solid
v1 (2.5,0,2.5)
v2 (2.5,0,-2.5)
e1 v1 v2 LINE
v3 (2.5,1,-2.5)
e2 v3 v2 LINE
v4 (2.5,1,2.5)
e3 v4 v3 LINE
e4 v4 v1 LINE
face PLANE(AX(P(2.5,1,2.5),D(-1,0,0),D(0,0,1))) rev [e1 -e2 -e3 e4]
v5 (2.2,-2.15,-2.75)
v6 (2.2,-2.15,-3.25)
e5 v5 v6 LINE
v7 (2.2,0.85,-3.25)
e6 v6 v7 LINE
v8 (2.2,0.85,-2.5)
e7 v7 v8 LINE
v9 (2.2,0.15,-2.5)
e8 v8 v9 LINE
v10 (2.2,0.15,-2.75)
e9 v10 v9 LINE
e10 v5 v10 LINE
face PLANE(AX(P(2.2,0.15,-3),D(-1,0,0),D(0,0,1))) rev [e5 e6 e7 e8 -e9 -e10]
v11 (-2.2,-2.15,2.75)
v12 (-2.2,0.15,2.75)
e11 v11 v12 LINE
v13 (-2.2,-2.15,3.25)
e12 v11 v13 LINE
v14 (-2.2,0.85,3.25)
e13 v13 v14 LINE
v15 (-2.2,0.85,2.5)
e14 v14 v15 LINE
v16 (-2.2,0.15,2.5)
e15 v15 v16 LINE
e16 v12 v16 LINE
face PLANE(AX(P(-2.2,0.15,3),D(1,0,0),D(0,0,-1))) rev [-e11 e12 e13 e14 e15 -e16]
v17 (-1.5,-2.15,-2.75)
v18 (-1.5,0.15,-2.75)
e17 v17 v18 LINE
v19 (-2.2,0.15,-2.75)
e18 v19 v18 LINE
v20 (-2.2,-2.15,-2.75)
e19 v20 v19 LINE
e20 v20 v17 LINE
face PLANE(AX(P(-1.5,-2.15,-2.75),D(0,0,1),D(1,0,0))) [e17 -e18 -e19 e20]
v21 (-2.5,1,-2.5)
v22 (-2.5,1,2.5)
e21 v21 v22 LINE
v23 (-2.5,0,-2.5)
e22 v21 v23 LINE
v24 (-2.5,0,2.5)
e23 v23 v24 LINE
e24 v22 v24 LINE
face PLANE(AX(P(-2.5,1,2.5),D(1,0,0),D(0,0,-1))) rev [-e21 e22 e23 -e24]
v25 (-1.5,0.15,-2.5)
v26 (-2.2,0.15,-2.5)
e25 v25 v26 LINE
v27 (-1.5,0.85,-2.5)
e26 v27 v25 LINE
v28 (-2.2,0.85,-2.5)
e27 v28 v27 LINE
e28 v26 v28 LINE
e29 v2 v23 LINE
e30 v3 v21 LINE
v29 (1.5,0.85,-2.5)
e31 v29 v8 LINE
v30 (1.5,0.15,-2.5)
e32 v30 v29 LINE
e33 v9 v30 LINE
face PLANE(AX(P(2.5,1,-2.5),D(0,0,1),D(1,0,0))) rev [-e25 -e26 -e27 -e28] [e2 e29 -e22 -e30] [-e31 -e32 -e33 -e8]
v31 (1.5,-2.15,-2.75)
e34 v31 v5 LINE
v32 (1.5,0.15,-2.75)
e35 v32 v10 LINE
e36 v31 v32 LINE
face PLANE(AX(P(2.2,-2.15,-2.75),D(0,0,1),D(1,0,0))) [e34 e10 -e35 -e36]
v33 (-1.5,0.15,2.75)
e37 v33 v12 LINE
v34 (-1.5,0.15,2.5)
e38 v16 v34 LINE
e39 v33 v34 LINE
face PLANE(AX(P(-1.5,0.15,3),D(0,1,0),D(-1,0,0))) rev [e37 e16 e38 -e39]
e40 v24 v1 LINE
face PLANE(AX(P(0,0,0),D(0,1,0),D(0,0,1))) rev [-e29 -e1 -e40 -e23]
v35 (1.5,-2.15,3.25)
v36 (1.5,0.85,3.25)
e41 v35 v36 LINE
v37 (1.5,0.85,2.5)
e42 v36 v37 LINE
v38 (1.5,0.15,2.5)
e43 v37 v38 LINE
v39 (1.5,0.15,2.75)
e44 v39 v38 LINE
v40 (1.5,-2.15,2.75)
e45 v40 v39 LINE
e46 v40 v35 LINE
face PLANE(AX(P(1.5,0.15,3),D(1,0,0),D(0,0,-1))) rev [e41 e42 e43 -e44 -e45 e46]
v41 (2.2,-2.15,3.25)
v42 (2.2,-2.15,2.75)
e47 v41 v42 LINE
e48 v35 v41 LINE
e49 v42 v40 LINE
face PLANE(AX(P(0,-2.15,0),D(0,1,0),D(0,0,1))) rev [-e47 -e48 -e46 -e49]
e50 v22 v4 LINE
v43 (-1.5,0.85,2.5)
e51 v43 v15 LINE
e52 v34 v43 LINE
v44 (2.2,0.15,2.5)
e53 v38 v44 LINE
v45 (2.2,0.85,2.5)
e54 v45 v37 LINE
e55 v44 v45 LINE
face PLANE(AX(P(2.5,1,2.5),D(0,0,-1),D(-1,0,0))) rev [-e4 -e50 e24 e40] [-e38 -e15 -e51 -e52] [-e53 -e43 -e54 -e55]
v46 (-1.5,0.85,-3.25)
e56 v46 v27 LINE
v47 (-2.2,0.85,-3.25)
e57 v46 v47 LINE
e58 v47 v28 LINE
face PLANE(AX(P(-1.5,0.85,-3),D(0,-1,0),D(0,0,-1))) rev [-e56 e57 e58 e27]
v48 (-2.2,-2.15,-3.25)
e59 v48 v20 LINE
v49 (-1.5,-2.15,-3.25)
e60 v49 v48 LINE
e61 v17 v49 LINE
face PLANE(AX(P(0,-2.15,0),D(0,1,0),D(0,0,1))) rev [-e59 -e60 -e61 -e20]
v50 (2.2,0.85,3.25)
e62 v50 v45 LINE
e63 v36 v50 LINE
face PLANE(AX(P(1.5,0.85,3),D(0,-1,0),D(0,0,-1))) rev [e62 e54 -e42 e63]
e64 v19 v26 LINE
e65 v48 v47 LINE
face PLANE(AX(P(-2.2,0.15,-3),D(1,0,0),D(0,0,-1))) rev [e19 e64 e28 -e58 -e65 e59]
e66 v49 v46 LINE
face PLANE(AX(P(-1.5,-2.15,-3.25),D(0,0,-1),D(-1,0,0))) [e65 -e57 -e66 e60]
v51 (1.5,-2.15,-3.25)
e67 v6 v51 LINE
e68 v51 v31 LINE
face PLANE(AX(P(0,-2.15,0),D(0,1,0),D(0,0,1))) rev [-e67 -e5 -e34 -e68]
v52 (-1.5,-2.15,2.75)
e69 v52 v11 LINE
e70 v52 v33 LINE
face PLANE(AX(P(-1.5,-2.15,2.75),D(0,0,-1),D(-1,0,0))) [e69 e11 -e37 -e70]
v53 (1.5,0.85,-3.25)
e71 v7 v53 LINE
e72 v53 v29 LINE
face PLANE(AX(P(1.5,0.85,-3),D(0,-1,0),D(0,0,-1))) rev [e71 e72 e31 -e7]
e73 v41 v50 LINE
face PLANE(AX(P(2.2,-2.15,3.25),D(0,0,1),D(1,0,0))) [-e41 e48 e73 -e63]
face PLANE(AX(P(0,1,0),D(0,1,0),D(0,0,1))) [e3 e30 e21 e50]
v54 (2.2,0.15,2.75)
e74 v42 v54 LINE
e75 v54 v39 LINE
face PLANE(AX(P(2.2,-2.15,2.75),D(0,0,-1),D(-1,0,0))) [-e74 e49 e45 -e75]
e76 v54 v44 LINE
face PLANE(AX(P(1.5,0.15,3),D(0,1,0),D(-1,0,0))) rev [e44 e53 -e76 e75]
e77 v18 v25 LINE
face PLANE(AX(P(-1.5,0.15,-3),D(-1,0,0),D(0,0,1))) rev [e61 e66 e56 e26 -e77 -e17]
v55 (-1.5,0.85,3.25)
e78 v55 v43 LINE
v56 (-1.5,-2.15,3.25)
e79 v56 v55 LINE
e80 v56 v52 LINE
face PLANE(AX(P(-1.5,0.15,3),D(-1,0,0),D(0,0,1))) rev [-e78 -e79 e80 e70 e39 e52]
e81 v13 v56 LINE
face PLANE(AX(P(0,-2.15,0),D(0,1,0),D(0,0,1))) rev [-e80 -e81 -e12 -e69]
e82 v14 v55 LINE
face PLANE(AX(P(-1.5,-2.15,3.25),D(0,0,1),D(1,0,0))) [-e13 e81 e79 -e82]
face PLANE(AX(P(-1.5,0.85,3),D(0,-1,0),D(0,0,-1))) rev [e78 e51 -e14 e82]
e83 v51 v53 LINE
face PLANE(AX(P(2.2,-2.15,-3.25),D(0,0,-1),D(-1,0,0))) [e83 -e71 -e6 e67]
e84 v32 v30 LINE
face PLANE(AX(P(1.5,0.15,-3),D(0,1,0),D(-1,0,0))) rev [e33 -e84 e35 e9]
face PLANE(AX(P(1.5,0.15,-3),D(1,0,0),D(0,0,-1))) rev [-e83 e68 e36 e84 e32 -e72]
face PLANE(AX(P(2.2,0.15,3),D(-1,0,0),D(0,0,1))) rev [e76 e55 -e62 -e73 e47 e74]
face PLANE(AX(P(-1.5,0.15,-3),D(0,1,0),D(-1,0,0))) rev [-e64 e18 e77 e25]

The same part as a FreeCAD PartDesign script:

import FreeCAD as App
import Part
import Sketcher
from FreeCAD import Vector

doc = App.newDocument("Part")
body = doc.addObject("PartDesign::Body", "Body")

# Sketch on XZ plane
sketch1 = body.newObject("Sketcher::SketchObject", "Sketch")
sketch1.AttachmentSupport = (doc.getObject("XZ_Plane"), [""])
sketch1.MapMode = "FlatFace"
sketch1.addGeometry([
    Part.LineSegment(Vector(-2.5, -2.5, 0), Vector(-2.5, 2.5, 0)),
    Part.LineSegment(Vector(-2.5, 2.5, 0), Vector(2.5, 2.5, 0)),
    Part.LineSegment(Vector(2.5, 2.5, 0), Vector(2.5, -2.5, 0)),
    Part.LineSegment(Vector(2.5, -2.5, 0), Vector(-2.5, -2.5, 0)),
], False)
sketch1.addConstraint([
    Sketcher.Constraint("Coincident", 0, 2, 1, 1),
    Sketcher.Constraint("Coincident", 1, 2, 2, 1),
    Sketcher.Constraint("Coincident", 2, 2, 3, 1),
    Sketcher.Constraint("Coincident", 3, 2, 0, 1),
    Sketcher.Constraint("Vertical", 0),
    Sketcher.Constraint("Horizontal", 1),
    Sketcher.Constraint("Vertical", 2),
    Sketcher.Constraint("Horizontal", 3),
    Sketcher.Constraint("Symmetric", 0, 2, 2, 2, -1, 1),
    Sketcher.Constraint("Equal", 3, 0),
    Sketcher.Constraint("DistanceX", 1, 1, 1, 2, 5.0),
])
pad1 = body.newObject("PartDesign::Pad", "Pad")
pad1.Profile = sketch1
pad1.Length = 1
pad1.Reversed = True

# Sketch on XY plane
sketch2 = body.newObject("Sketcher::SketchObject", "Sketch001")
sketch2.AttachmentSupport = (doc.getObject("XY_Plane"), [""])
sketch2.MapMode = "FlatFace"
sketch2.AttachmentOffset = App.Placement(Vector(0, 0, 2.5), App.Rotation())
sketch2.addGeometry([
    Part.LineSegment(Vector(-2.2, 0.85, 0), Vector(-2.2, 0.15, 0)),  # 0
    Part.LineSegment(Vector(-2.2, 0.15, 0), Vector(-1.5, 0.15, 0)),  # 1
    Part.LineSegment(Vector(-1.5, 0.15, 0), Vector(-1.5, 0.85, 0)),  # 2
    Part.LineSegment(Vector(-1.5, 0.85, 0), Vector(-2.2, 0.85, 0)),  # 3
    Part.LineSegment(Vector(1.5, 0.85, 0), Vector(1.5, 0.15, 0)),  # 4
    Part.LineSegment(Vector(1.5, 0.15, 0), Vector(2.2, 0.15, 0)),  # 5
    Part.LineSegment(Vector(2.2, 0.15, 0), Vector(2.2, 0.85, 0)),  # 6
    Part.LineSegment(Vector(2.2, 0.85, 0), Vector(1.5, 0.85, 0)),  # 7
], False)
sketch2.addConstraint([
    Sketcher.Constraint("Coincident", 0, 2, 1, 1),
    Sketcher.Constraint("Coincident", 1, 2, 2, 1),
    Sketcher.Constraint("Coincident", 2, 2, 3, 1),
    Sketcher.Constraint("Coincident", 3, 2, 0, 1),
    Sketcher.Constraint("Coincident", 4, 2, 5, 1),
    Sketcher.Constraint("Coincident", 5, 2, 6, 1),
    Sketcher.Constraint("Coincident", 6, 2, 7, 1),
    Sketcher.Constraint("Coincident", 7, 2, 4, 1),
    Sketcher.Constraint("Vertical", 0),
    Sketcher.Constraint("Horizontal", 1),
    Sketcher.Constraint("Vertical", 2),
    Sketcher.Constraint("Horizontal", 3),
    Sketcher.Constraint("Vertical", 4),
    Sketcher.Constraint("Horizontal", 5),
    Sketcher.Constraint("Vertical", 6),
    Sketcher.Constraint("Horizontal", 7),
    Sketcher.Constraint("Symmetric", 1, 2, 4, 2, -2),
    Sketcher.Constraint("Symmetric", 3, 2, 6, 2, -2),
    Sketcher.Constraint("Equal", 7, 0),
    Sketcher.Constraint("DistanceX", 1, 1, 1, 2, 0.7),
    Sketcher.Constraint("DistanceX", 1, 2, 4, 2, 3.0),
    Sketcher.Constraint("DistanceY", -1, 1, 0, 2, 0.15),
])
pad2 = body.newObject("PartDesign::Pad", "Pad001")
pad2.Profile = sketch2
pad2.Length = 0.5

# Sketch on XZ plane
sketch3 = body.newObject("Sketcher::SketchObject", "Sketch002")
sketch3.AttachmentSupport = (doc.getObject("XZ_Plane"), [""])
sketch3.MapMode = "FlatFace"
sketch3.AttachmentOffset = App.Placement(Vector(0, 0, -0.85), App.Rotation())
sketch3.addGeometry([
    Part.LineSegment(Vector(-2.2, 2.75, 0), Vector(-2.2, 3.25, 0)),  # 0
    Part.LineSegment(Vector(-2.2, 3.25, 0), Vector(-1.5, 3.25, 0)),  # 1
    Part.LineSegment(Vector(-1.5, 3.25, 0), Vector(-1.5, 2.75, 0)),  # 2
    Part.LineSegment(Vector(-1.5, 2.75, 0), Vector(-2.2, 2.75, 0)),  # 3
    Part.LineSegment(Vector(1.5, 2.75, 0), Vector(1.5, 3.25, 0)),  # 4
    Part.LineSegment(Vector(1.5, 3.25, 0), Vector(2.2, 3.25, 0)),  # 5
    Part.LineSegment(Vector(2.2, 3.25, 0), Vector(2.2, 2.75, 0)),  # 6
    Part.LineSegment(Vector(2.2, 2.75, 0), Vector(1.5, 2.75, 0)),  # 7
], False)
sketch3.addConstraint([
    Sketcher.Constraint("Coincident", 0, 2, 1, 1),
    Sketcher.Constraint("Coincident", 1, 2, 2, 1),
    Sketcher.Constraint("Coincident", 2, 2, 3, 1),
    Sketcher.Constraint("Coincident", 3, 2, 0, 1),
    Sketcher.Constraint("Coincident", 4, 2, 5, 1),
    Sketcher.Constraint("Coincident", 5, 2, 6, 1),
    Sketcher.Constraint("Coincident", 6, 2, 7, 1),
    Sketcher.Constraint("Coincident", 7, 2, 4, 1),
    Sketcher.Constraint("Vertical", 0),
    Sketcher.Constraint("Horizontal", 1),
    Sketcher.Constraint("Vertical", 2),
    Sketcher.Constraint("Horizontal", 3),
    Sketcher.Constraint("Vertical", 4),
    Sketcher.Constraint("Horizontal", 5),
    Sketcher.Constraint("Vertical", 6),
    Sketcher.Constraint("Horizontal", 7),
    Sketcher.Constraint("Symmetric", 1, 2, 4, 2, -2),
    Sketcher.Constraint("Symmetric", 3, 2, 6, 2, -2),
    Sketcher.Constraint("DistanceX", 1, 1, 1, 2, 0.7),
    Sketcher.Constraint("DistanceY", 0, 1, 0, 2, 0.5),
    Sketcher.Constraint("DistanceX", 1, 2, 4, 2, 3.0),
    Sketcher.Constraint("DistanceY", -1, 1, 0, 2, 3.25),
])
pad3 = body.newObject("PartDesign::Pad", "Pad002")
pad3.Profile = sketch3
pad3.Length = 3

# Sketch on XY plane
sketch4 = body.newObject("Sketcher::SketchObject", "Sketch003")
sketch4.AttachmentSupport = (doc.getObject("XY_Plane"), [""])
sketch4.MapMode = "FlatFace"
sketch4.AttachmentOffset = App.Placement(Vector(0, 0, -2.5), App.Rotation())
sketch4.addGeometry([
    Part.LineSegment(Vector(2.2, 0.85, 0), Vector(2.2, 0.15, 0)),  # 0
    Part.LineSegment(Vector(2.2, 0.15, 0), Vector(1.5, 0.15, 0)),  # 1
    Part.LineSegment(Vector(1.5, 0.15, 0), Vector(1.5, 0.85, 0)),  # 2
    Part.LineSegment(Vector(1.5, 0.85, 0), Vector(2.2, 0.85, 0)),  # 3
    Part.LineSegment(Vector(-1.5, 0.85, 0), Vector(-1.5, 0.15, 0)),  # 4
    Part.LineSegment(Vector(-1.5, 0.15, 0), Vector(-2.2, 0.15, 0)),  # 5
    Part.LineSegment(Vector(-2.2, 0.15, 0), Vector(-2.2, 0.85, 0)),  # 6
    Part.LineSegment(Vector(-2.2, 0.85, 0), Vector(-1.5, 0.85, 0)),  # 7
], False)
sketch4.addConstraint([
    Sketcher.Constraint("Coincident", 0, 2, 1, 1),
    Sketcher.Constraint("Coincident", 1, 2, 2, 1),
    Sketcher.Constraint("Coincident", 2, 2, 3, 1),
    Sketcher.Constraint("Coincident", 3, 2, 0, 1),
    Sketcher.Constraint("Coincident", 4, 2, 5, 1),
    Sketcher.Constraint("Coincident", 5, 2, 6, 1),
    Sketcher.Constraint("Coincident", 6, 2, 7, 1),
    Sketcher.Constraint("Coincident", 7, 2, 4, 1),
    Sketcher.Constraint("Vertical", 0),
    Sketcher.Constraint("Horizontal", 1),
    Sketcher.Constraint("Vertical", 2),
    Sketcher.Constraint("Horizontal", 3),
    Sketcher.Constraint("Vertical", 4),
    Sketcher.Constraint("Horizontal", 5),
    Sketcher.Constraint("Vertical", 6),
    Sketcher.Constraint("Horizontal", 7),
    Sketcher.Constraint("Symmetric", 1, 2, 4, 2, -2),
    Sketcher.Constraint("Symmetric", 3, 2, 6, 2, -2),
    Sketcher.Constraint("Equal", 7, 0),
    Sketcher.Constraint("DistanceX", 1, 2, 1, 1, 0.7),
    Sketcher.Constraint("DistanceX", 4, 2, 1, 2, 3.0),
    Sketcher.Constraint("DistanceY", -1, 1, 0, 2, 0.15),
])
pad4 = body.newObject("PartDesign::Pad", "Pad003")
pad4.Profile = sketch4
pad4.Length = 0.5
pad4.Reversed = True

# Sketch on XZ plane
sketch5 = body.newObject("Sketcher::SketchObject", "Sketch004")
sketch5.AttachmentSupport = (doc.getObject("XZ_Plane"), [""])
sketch5.MapMode = "FlatFace"
sketch5.AttachmentOffset = App.Placement(Vector(0, 0, -0.85), App.Rotation())
sketch5.addGeometry([
    Part.LineSegment(Vector(-2.2, -3.25, 0), Vector(-2.2, -2.75, 0)),  # 0
    Part.LineSegment(Vector(-2.2, -2.75, 0), Vector(-1.5, -2.75, 0)),  # 1
    Part.LineSegment(Vector(-1.5, -2.75, 0), Vector(-1.5, -3.25, 0)),  # 2
    Part.LineSegment(Vector(-1.5, -3.25, 0), Vector(-2.2, -3.25, 0)),  # 3
    Part.LineSegment(Vector(1.5, -3.25, 0), Vector(1.5, -2.75, 0)),  # 4
    Part.LineSegment(Vector(1.5, -2.75, 0), Vector(2.2, -2.75, 0)),  # 5
    Part.LineSegment(Vector(2.2, -2.75, 0), Vector(2.2, -3.25, 0)),  # 6
    Part.LineSegment(Vector(2.2, -3.25, 0), Vector(1.5, -3.25, 0)),  # 7
], False)
sketch5.addConstraint([
    Sketcher.Constraint("Coincident", 0, 2, 1, 1),
    Sketcher.Constraint("Coincident", 1, 2, 2, 1),
    Sketcher.Constraint("Coincident", 2, 2, 3, 1),
    Sketcher.Constraint("Coincident", 3, 2, 0, 1),
    Sketcher.Constraint("Coincident", 4, 2, 5, 1),
    Sketcher.Constraint("Coincident", 5, 2, 6, 1),
    Sketcher.Constraint("Coincident", 6, 2, 7, 1),
    Sketcher.Constraint("Coincident", 7, 2, 4, 1),
    Sketcher.Constraint("Vertical", 0),
    Sketcher.Constraint("Horizontal", 1),
    Sketcher.Constraint("Vertical", 2),
    Sketcher.Constraint("Horizontal", 3),
    Sketcher.Constraint("Vertical", 4),
    Sketcher.Constraint("Horizontal", 5),
    Sketcher.Constraint("Vertical", 6),
    Sketcher.Constraint("Horizontal", 7),
    Sketcher.Constraint("Symmetric", 1, 2, 4, 2, -2),
    Sketcher.Constraint("Symmetric", 3, 2, 6, 2, -2),
    Sketcher.Constraint("DistanceX", 1, 1, 1, 2, 0.7),
    Sketcher.Constraint("DistanceY", 0, 1, 0, 2, 0.5),
    Sketcher.Constraint("DistanceX", 1, 2, 4, 2, 3.0),
    Sketcher.Constraint("DistanceY", 0, 2, -1, 1, 2.75),
])
pad5 = body.newObject("PartDesign::Pad", "Pad004")
pad5.Profile = sketch5
pad5.Length = 3

doc.recompute()
